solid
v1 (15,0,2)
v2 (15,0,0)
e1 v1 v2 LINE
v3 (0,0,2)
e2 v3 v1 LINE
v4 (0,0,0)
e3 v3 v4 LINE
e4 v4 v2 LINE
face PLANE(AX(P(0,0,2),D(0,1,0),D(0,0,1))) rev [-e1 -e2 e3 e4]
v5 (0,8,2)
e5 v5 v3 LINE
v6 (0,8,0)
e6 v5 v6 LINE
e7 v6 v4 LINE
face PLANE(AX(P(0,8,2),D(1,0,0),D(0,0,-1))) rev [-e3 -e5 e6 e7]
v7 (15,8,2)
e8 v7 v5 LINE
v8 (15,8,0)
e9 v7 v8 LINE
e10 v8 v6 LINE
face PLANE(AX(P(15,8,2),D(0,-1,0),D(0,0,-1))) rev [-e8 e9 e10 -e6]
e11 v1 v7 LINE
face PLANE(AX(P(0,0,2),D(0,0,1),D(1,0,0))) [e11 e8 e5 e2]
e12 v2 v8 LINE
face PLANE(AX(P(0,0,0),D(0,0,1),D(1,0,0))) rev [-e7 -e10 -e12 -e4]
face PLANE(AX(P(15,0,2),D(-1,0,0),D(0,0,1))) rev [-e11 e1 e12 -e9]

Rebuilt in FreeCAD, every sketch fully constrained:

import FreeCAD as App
import Part
import Sketcher
from FreeCAD import Vector
Q = App.Units.Quantity

doc = App.newDocument("Part")
params = doc.addObject("Spreadsheet::Sheet", "Params")
for row, (alias, value) in enumerate([
    ("sketch1_width", "15 mm"),
    ("sketch1_height", "8 mm"),
    ("pad1_length", "2 mm"),
], start=1):
    params.set(f"A{row}", alias)
    params.set(f"B{row}", "=" + value)
    params.setAlias(f"B{row}", alias)

body = doc.addObject("PartDesign::Body", "Body")

sketch1 = doc.addObject("Sketcher::SketchObject", "Sketch")
body.addObject(sketch1)
sketch1.AttachmentSupport = (doc.XY_Plane, [""])
sketch1.MapMode = "FlatFace"
sketch1.addGeometry(Part.LineSegment(Vector(0, 8, 0), Vector(0, 0, 0)), False)
sketch1.addGeometry(Part.LineSegment(Vector(0, 0, 0), Vector(15, 0, 0)), False)
sketch1.addGeometry(Part.LineSegment(Vector(15, 0, 0), Vector(15, 8, 0)), False)
sketch1.addGeometry(Part.LineSegment(Vector(15, 8, 0), Vector(0, 8, 0)), False)
sketch1.addConstraint(Sketcher.Constraint("Coincident", 0, 2, 1, 1))
sketch1.addConstraint(Sketcher.Constraint("Coincident", 1, 2, 2, 1))
sketch1.addConstraint(Sketcher.Constraint("Coincident", 2, 2, 3, 1))
sketch1.addConstraint(Sketcher.Constraint("Coincident", 3, 2, 0, 1))
sketch1.addConstraint(Sketcher.Constraint("Vertical", 0))
sketch1.addConstraint(Sketcher.Constraint("Horizontal", 1))
sketch1.addConstraint(Sketcher.Constraint("Vertical", 2))
sketch1.addConstraint(Sketcher.Constraint("Horizontal", 3))
sketch1.addConstraint(Sketcher.Constraint("Coincident", 0, 2, -1, 1))
sketch1.addConstraint(Sketcher.Constraint("DistanceX", 1, 1, 1, 2, Q("15 mm")))
sketch1.addConstraint(Sketcher.Constraint("DistanceY", 0, 2, 0, 1, Q("8 mm")))
sketch1.setExpression("Constraints[9]", "Params.sketch1_width")
sketch1.setExpression("Constraints[10]", "Params.sketch1_height")
pad1 = doc.addObject("PartDesign::Pad", "Pad")
body.addObject(pad1)
pad1.Profile = sketch1
pad1.setExpression("Length", "Params.pad1_length")

doc.recompute()
